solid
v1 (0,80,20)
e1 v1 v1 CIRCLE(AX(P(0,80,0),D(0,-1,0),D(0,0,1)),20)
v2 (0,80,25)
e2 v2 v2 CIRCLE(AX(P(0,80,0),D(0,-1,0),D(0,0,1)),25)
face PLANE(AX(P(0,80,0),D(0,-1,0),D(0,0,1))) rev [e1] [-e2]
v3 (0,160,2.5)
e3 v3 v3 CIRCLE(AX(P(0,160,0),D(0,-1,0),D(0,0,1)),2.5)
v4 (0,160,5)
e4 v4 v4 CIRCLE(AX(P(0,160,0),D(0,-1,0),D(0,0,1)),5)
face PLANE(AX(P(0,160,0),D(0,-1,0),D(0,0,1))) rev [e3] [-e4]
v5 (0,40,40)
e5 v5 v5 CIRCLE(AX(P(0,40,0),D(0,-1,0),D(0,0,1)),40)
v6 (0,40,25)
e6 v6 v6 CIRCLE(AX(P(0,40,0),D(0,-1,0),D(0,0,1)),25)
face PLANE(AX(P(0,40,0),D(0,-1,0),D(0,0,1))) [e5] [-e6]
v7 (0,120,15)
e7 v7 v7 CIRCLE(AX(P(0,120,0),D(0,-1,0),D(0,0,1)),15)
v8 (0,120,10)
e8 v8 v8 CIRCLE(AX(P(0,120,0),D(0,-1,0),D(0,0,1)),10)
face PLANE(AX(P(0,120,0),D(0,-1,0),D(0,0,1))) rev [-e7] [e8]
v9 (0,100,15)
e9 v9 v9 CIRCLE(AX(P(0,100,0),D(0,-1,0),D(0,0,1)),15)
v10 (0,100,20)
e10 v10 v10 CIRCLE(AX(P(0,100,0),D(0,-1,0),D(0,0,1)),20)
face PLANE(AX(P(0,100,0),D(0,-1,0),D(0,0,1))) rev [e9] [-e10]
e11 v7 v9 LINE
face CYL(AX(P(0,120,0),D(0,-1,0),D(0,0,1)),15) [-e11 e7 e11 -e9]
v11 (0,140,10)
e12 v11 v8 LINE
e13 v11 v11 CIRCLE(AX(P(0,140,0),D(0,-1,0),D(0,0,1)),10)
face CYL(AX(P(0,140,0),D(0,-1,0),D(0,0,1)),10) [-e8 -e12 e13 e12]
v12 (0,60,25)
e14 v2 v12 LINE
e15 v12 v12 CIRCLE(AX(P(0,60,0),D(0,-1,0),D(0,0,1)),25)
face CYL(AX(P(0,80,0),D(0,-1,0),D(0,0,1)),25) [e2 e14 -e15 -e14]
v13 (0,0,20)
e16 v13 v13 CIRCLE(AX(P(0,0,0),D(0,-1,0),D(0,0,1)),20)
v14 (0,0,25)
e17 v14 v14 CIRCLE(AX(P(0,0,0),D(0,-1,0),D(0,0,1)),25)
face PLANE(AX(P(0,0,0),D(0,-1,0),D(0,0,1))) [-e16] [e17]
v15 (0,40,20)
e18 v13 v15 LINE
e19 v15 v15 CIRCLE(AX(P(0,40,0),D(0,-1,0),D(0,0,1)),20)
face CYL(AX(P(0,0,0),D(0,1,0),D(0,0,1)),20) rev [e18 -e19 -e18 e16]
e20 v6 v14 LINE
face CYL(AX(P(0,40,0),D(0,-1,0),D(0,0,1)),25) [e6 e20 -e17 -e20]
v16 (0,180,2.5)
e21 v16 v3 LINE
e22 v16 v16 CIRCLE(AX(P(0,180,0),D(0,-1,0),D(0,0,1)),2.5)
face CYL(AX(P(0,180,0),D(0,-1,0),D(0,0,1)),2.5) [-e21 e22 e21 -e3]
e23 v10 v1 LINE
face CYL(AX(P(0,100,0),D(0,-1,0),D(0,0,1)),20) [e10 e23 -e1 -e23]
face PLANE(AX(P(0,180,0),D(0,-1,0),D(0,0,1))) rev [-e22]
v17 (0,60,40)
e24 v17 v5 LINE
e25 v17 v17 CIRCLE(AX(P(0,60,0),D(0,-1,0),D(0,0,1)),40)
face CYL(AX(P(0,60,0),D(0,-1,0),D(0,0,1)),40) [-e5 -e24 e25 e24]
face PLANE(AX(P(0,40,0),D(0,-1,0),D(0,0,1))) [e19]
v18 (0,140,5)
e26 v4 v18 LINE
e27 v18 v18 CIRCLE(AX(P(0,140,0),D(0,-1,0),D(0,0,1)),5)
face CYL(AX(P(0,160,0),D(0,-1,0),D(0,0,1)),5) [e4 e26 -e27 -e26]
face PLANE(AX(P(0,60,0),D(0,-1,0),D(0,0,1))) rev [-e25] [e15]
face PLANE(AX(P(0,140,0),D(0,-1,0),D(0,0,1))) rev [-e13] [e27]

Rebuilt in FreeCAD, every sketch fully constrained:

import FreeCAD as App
import Part
import Sketcher

V = App.Vector

doc = App.newDocument("Part")
body = doc.addObject("PartDesign::Body", "Body")

sketch1 = doc.addObject("Sketcher::SketchObject", "Sketch")
body.addObject(sketch1)
sketch1.AttachmentSupport = (doc.YZ_Plane, [""])
sketch1.MapMode = "FlatFace"
sketch1.addGeometry([
    Part.LineSegment(V(0, 25, 0), V(0, 20, 0)),
    Part.LineSegment(V(0, 20, 0), V(40, 20, 0)),
    Part.LineSegment(V(40, 20, 0), V(40, 0, 0)),
    Part.LineSegment(V(40, 0, 0), V(180, 0, 0)),
    Part.LineSegment(V(180, 0, 0), V(180, 2.5, 0)),
    Part.LineSegment(V(180, 2.5, 0), V(160, 2.5, 0)),
    Part.LineSegment(V(160, 2.5, 0), V(160, 5, 0)),
    Part.LineSegment(V(160, 5, 0), V(140, 5, 0)),
    Part.LineSegment(V(140, 5, 0), V(140, 10, 0)),
    Part.LineSegment(V(140, 10, 0), V(120, 10, 0)),
    Part.LineSegment(V(120, 10, 0), V(120, 15, 0)),
    Part.LineSegment(V(120, 15, 0), V(100, 15, 0)),
    Part.LineSegment(V(100, 15, 0), V(100, 20, 0)),
    Part.LineSegment(V(100, 20, 0), V(80, 20, 0)),
    Part.LineSegment(V(80, 20, 0), V(80, 25, 0)),
    Part.LineSegment(V(80, 25, 0), V(60, 25, 0)),
    Part.LineSegment(V(60, 25, 0), V(60, 40, 0)),
    Part.LineSegment(V(60, 40, 0), V(40, 40, 0)),
    Part.LineSegment(V(40, 40, 0), V(40, 25, 0)),
    Part.LineSegment(V(40, 25, 0), V(0, 25, 0)),
], False)
sketch1.addConstraint([
    Sketcher.Constraint("Coincident", 0, 2, 1, 1),
    Sketcher.Constraint("Coincident", 1, 2, 2, 1),
    Sketcher.Constraint("Coincident", 2, 2, 3, 1),
    Sketcher.Constraint("Coincident", 3, 2, 4, 1),
    Sketcher.Constraint("Coincident", 4, 2, 5, 1),
    Sketcher.Constraint("Coincident", 5, 2, 6, 1),
    Sketcher.Constraint("Coincident", 6, 2, 7, 1),
    Sketcher.Constraint("Coincident", 7, 2, 8, 1),
    Sketcher.Constraint("Coincident", 8, 2, 9, 1),
    Sketcher.Constraint("Coincident", 9, 2, 10, 1),
    Sketcher.Constraint("Coincident", 10, 2, 11, 1),
    Sketcher.Constraint("Coincident", 11, 2, 12, 1),
    Sketcher.Constraint("Coincident", 12, 2, 13, 1),
    Sketcher.Constraint("Coincident", 13, 2, 14, 1),
    Sketcher.Constraint("Coincident", 14, 2, 15, 1),
    Sketcher.Constraint("Coincident", 15, 2, 16, 1),
    Sketcher.Constraint("Coincident", 16, 2, 17, 1),
    Sketcher.Constraint("Coincident", 17, 2, 18, 1),
    Sketcher.Constraint("Coincident", 18, 2, 19, 1),
    Sketcher.Constraint("Coincident", 19, 2, 0, 1),
    Sketcher.Constraint("Vertical", 0),
    Sketcher.Constraint("Horizontal", 1),
    Sketcher.Constraint("Vertical", 2),
    Sketcher.Constraint("Horizontal", 3),
    Sketcher.Constraint("Vertical", 4),
    Sketcher.Constraint("Horizontal", 5),
    Sketcher.Constraint("Vertical", 6),
    Sketcher.Constraint("Horizontal", 7),
    Sketcher.Constraint("Vertical", 8),
    Sketcher.Constraint("Horizontal", 9),
    Sketcher.Constraint("Vertical", 10),
    Sketcher.Constraint("Horizontal", 11),
    Sketcher.Constraint("Vertical", 12),
    Sketcher.Constraint("Horizontal", 13),
    Sketcher.Constraint("Vertical", 14),
    Sketcher.Constraint("Horizontal", 15),
    Sketcher.Constraint("Vertical", 16),
    Sketcher.Constraint("Horizontal", 17),
    Sketcher.Constraint("Vertical", 18),
    Sketcher.Constraint("Horizontal", 19),
    Sketcher.Constraint("PointOnObject", 0, 2, -2),
    Sketcher.Constraint("PointOnObject", 2, 2, -1),
    Sketcher.Constraint("Horizontal", 1, 2, 12, 2),
    Sketcher.Constraint("Horizontal", 15, 2, 18, 2),
    Sketcher.Constraint("Vertical", 2, 2, 17, 2),
    Sketcher.Constraint("Equal", 5, 7),
    Sketcher.Constraint("Equal", 7, 9),
    Sketcher.Constraint("Equal", 9, 11),
    Sketcher.Constraint("Equal", 11, 13),
    Sketcher.Constraint("Equal", 13, 15),
    Sketcher.Constraint("Equal", 15, 17),
    Sketcher.Constraint("Equal", 17, 2),
    Sketcher.Constraint("Equal", 4, 6),
    Sketcher.Constraint("Equal", 0, 8),
    Sketcher.Constraint("Equal", 8, 10),
    Sketcher.Constraint("Equal", 10, 12),
    Sketcher.Constraint("DistanceX", 1, 1, 1, 2, 40.0),
    Sketcher.Constraint("DistanceX", 3, 1, 3, 2, 140.0),
    Sketcher.Constraint("DistanceY", 0, 2, 0, 1, 5.0),
    Sketcher.Constraint("DistanceY", 16, 1, 16, 2, 15.0),
])
revolution = doc.addObject("PartDesign::Revolution", "Revolution")
body.addObject(revolution)
revolution.Profile = sketch1
revolution.ReferenceAxis = (sketch1, ["H_Axis"])
revolution.Angle = 360

doc.recompute()
